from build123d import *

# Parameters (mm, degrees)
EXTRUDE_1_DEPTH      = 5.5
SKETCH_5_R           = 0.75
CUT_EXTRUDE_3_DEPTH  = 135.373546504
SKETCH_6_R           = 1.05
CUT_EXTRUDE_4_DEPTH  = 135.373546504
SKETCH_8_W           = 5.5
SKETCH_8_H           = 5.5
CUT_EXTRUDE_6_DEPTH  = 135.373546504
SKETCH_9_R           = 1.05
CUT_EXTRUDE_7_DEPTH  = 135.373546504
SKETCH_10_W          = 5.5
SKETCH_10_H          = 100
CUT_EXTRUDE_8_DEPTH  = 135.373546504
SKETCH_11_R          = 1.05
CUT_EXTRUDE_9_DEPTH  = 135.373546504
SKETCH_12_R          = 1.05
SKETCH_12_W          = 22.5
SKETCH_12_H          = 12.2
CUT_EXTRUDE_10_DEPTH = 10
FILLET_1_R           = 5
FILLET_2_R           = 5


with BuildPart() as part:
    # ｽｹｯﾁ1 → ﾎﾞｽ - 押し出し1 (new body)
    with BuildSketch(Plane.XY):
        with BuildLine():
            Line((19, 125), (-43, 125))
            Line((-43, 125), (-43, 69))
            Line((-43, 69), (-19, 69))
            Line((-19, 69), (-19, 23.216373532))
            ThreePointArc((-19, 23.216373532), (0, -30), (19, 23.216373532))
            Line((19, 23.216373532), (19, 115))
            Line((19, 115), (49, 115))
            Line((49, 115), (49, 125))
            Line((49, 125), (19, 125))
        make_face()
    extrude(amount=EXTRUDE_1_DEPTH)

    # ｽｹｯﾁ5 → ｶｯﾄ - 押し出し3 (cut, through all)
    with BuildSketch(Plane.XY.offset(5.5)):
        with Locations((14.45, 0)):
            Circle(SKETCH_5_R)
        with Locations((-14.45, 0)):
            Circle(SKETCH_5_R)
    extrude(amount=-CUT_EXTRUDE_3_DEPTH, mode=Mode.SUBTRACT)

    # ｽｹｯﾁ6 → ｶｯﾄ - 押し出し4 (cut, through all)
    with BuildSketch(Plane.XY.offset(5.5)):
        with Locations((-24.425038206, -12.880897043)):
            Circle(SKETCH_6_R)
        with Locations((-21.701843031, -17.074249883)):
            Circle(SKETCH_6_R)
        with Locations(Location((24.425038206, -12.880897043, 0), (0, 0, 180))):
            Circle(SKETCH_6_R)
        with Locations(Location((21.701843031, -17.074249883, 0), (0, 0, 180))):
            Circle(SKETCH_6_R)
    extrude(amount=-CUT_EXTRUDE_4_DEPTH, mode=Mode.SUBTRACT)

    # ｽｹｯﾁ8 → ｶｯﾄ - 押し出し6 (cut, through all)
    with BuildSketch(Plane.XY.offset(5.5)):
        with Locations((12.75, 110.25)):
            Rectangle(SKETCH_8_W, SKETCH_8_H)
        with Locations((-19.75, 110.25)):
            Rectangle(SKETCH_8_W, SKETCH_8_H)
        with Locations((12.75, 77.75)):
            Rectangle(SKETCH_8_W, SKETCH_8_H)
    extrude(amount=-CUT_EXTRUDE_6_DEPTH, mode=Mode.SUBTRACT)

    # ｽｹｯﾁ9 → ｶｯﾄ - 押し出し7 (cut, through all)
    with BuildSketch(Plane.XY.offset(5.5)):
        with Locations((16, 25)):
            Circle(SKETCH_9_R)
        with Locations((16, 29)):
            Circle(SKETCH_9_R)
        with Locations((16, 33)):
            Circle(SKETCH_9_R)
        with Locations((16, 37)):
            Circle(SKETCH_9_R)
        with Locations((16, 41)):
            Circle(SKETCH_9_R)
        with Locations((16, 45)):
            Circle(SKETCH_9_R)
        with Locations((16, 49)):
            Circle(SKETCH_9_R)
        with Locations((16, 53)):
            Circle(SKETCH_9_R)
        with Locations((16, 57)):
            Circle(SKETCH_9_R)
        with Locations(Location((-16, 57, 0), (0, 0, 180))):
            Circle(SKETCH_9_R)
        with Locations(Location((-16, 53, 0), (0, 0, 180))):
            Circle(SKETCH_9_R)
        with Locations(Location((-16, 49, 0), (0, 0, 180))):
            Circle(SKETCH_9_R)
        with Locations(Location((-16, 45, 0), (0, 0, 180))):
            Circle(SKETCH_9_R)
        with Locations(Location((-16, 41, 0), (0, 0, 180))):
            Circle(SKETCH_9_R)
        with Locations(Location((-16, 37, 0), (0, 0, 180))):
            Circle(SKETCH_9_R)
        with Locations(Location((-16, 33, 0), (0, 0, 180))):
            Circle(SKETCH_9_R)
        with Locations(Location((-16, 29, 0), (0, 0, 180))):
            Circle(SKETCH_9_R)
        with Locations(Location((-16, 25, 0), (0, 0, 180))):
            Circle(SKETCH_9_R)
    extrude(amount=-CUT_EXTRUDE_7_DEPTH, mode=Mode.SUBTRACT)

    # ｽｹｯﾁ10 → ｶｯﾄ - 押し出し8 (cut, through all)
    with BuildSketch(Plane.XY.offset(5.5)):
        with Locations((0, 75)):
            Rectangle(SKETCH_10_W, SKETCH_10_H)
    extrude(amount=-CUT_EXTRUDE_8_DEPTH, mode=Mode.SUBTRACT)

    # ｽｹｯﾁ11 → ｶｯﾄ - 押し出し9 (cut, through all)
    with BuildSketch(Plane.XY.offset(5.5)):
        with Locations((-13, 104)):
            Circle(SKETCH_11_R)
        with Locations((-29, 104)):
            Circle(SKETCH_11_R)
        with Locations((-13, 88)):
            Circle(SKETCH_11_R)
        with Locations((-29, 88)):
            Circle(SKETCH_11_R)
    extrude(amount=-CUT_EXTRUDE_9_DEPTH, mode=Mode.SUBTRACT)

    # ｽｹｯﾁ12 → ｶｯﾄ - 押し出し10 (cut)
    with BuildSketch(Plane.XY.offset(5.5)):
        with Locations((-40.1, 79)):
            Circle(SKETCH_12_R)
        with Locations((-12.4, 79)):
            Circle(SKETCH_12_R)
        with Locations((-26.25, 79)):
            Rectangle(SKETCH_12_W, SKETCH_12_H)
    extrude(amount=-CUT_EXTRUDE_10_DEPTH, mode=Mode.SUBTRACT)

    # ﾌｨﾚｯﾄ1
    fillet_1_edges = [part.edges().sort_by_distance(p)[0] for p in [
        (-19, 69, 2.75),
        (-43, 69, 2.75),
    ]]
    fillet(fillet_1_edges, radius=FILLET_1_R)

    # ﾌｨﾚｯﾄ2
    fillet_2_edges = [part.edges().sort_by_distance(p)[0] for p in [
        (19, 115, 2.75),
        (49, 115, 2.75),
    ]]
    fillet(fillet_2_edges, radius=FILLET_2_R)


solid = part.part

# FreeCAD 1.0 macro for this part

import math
import FreeCAD as App
import Part
import Sketcher
Q = App.Units.Quantity


def edges_at(feature, points):
    """Names of the edges that pass closest to the given points."""
    edges = feature.Shape.Edges
    near = lambda p: min(range(len(edges)), key=lambda i: edges[i].distToShape(Part.Vertex(*p))[0])
    return sorted({f"Edge{near(p) + 1}" for p in points})

doc = App.newDocument("Part")
body = doc.addObject("PartDesign::Body", "Body")

# Sketch on XY plane
sketch1 = body.newObject("Sketcher::SketchObject", "Sketch")
sketch1.AttachmentSupport = (doc.getObject("XY_Plane"), [""])
sketch1.MapMode = "FlatFace"
sketch1.addGeometry([
    Part.LineSegment(App.Vector(-43, 125, 0), App.Vector(-43, 69, 0)),  # 0
    Part.LineSegment(App.Vector(-43, 69, 0), App.Vector(-19, 69, 0)),  # 1
    Part.LineSegment(App.Vector(-19, 69, 0), App.Vector(-19, 23, 0)),  # 2
    Part.ArcOfCircle(Part.Circle(App.Vector(0, 0, 0), App.Vector(0, 0, 1), 30), math.radians(129), math.radians(411)),  # 3
    Part.LineSegment(App.Vector(19, 23, 0), App.Vector(19, 115, 0)),  # 4
    Part.LineSegment(App.Vector(19, 115, 0), App.Vector(49, 115, 0)),  # 5
    Part.LineSegment(App.Vector(49, 115, 0), App.Vector(49, 125, 0)),  # 6
    Part.LineSegment(App.Vector(49, 125, 0), App.Vector(-43, 125, 0)),  # 7
], False)
sketch1.addConstraint([
    Sketcher.Constraint("Coincident", 0, 2, 1, 1),
    Sketcher.Constraint("Coincident", 1, 2, 2, 1),
    Sketcher.Constraint("Coincident", 2, 2, 3, 1),
    Sketcher.Constraint("Coincident", 3, 2, 4, 1),
    Sketcher.Constraint("Coincident", 4, 2, 5, 1),
    Sketcher.Constraint("Coincident", 5, 2, 6, 1),
    Sketcher.Constraint("Coincident", 6, 2, 7, 1),
    Sketcher.Constraint("Coincident", 7, 2, 0, 1),
    Sketcher.Constraint("Vertical", 0),
    Sketcher.Constraint("Horizontal", 1),
    Sketcher.Constraint("Vertical", 2),
    Sketcher.Constraint("Vertical", 4),
    Sketcher.Constraint("Horizontal", 5),
    Sketcher.Constraint("Vertical", 6),
    Sketcher.Constraint("Horizontal", 7),
    Sketcher.Constraint("Coincident", 3, 3, -1, 1),
    Sketcher.Constraint("Horizontal", 2, 2, 3, 2),
    Sketcher.Constraint("Radius", 3, Q("30 mm")),
    Sketcher.Constraint("DistanceX", 1, 1, 1, 2, Q("24 mm")),
    Sketcher.Constraint("DistanceX", 5, 1, 5, 2, Q("30 mm")),
    Sketcher.Constraint("DistanceX", 7, 2, 7, 1, Q("92 mm")),
    Sketcher.Constraint("DistanceY", 0, 2, 0, 1, Q("56 mm")),
    Sketcher.Constraint("DistanceY", 6, 1, 6, 2, Q("10 mm")),
    Sketcher.Constraint("DistanceY", -1, 1, 0, 2, Q("69 mm")),
])
pad1 = body.newObject("PartDesign::Pad", "Pad")
pad1.Profile = sketch1
pad1.Length = 5.5

# Sketch on XY plane
sketch2 = body.newObject("Sketcher::SketchObject", "Sketch001")
sketch2.AttachmentSupport = (doc.getObject("XY_Plane"), [""])
sketch2.MapMode = "FlatFace"
sketch2.AttachmentOffset = App.Placement(App.Vector(0, 0, 5.5), App.Rotation())
sketch2.addGeometry([
    Part.Circle(App.Vector(14.4, 0, 0), App.Vector(0, 0, 1), 0.8),
    Part.Circle(App.Vector(-14.4, 0, 0), App.Vector(0, 0, 1), 0.8),
], False)
sketch2.addConstraint([
    Sketcher.Constraint("Equal", 0, 1),
    Sketcher.Constraint("Symmetric", 0, 3, 1, 3, -1, 1),
    Sketcher.Constraint("PointOnObject", 0, 3, -1),
    Sketcher.Constraint("Diameter", 0, Q("1.5 mm")),
    Sketcher.Constraint("DistanceX", 1, 3, 0, 3, Q("28.9 mm")),
])
pocket1 = body.newObject("PartDesign::Pocket", "Pocket")
pocket1.Profile = sketch2
pocket1.Type = "ThroughAll"

# Sketch on XY plane
sketch3 = body.newObject("Sketcher::SketchObject", "Sketch002")
sketch3.AttachmentSupport = (doc.getObject("XY_Plane"), [""])
sketch3.MapMode = "FlatFace"
sketch3.AttachmentOffset = App.Placement(App.Vector(0, 0, 5.5), App.Rotation())
sketch3.addGeometry([
    Part.Circle(App.Vector(-24.4, -12.9, 0), App.Vector(0, 0, 1), 1.1),
    Part.Circle(App.Vector(-21.7, -17.1, 0), App.Vector(0, 0, 1), 1.1),
    Part.Circle(App.Vector(24.4, -12.9, 0), App.Vector(0, 0, 1), 1.1),
    Part.Circle(App.Vector(21.7, -17.1, 0), App.Vector(0, 0, 1), 1.1),
], False)
sketch3.addConstraint([
    Sketcher.Constraint("Equal", 0, 1),
    Sketcher.Constraint("Equal", 1, 2),
    Sketcher.Constraint("Equal", 2, 3),
    Sketcher.Constraint("Symmetric", 0, 3, 2, 3, -2),
    Sketcher.Constraint("Symmetric", 1, 3, 3, 3, -2),
    Sketcher.Constraint("Diameter", 0, Q("2.1 mm")),
    Sketcher.Constraint("DistanceX", 0, 3, -1, 1, Q("24.425038 mm")),
    Sketcher.Constraint("DistanceY", 1, 3, -1, 1, Q("17.07425 mm")),
    Sketcher.Constraint("DistanceX", 1, 3, 2, 3, Q("46.126881 mm")),
    Sketcher.Constraint("DistanceY", 0, 3, -1, 1, Q("12.880897 mm")),
])
pocket2 = body.newObject("PartDesign::Pocket", "Pocket001")
pocket2.Profile = sketch3
pocket2.Type = "ThroughAll"

# Sketch on XY plane
sketch4 = body.newObject("Sketcher::SketchObject", "Sketch003")
sketch4.AttachmentSupport = (doc.getObject("XY_Plane"), [""])
sketch4.MapMode = "FlatFace"
sketch4.AttachmentOffset = App.Placement(App.Vector(0, 0, 5.5), App.Rotation())
sketch4.addGeometry([
    Part.LineSegment(App.Vector(10, 113, 0), App.Vector(10, 108, 0)),  # 0
    Part.LineSegment(App.Vector(10, 108, 0), App.Vector(16, 108, 0)),  # 1
    Part.LineSegment(App.Vector(16, 108, 0), App.Vector(16, 113, 0)),  # 2
    Part.LineSegment(App.Vector(16, 113, 0), App.Vector(10, 113, 0)),  # 3
    Part.LineSegment(App.Vector(-22, 113, 0), App.Vector(-22, 108, 0)),  # 4
    Part.LineSegment(App.Vector(-22, 108, 0), App.Vector(-17, 108, 0)),  # 5
    Part.LineSegment(App.Vector(-17, 108, 0), App.Vector(-17, 113, 0)),  # 6
    Part.LineSegment(App.Vector(-17, 113, 0), App.Vector(-22, 113, 0)),  # 7
    Part.LineSegment(App.Vector(10, 80, 0), App.Vector(10, 75, 0)),  # 8
    Part.LineSegment(App.Vector(10, 75, 0), App.Vector(16, 75, 0)),  # 9
    Part.LineSegment(App.Vector(16, 75, 0), App.Vector(16, 80, 0)),  # 10
    Part.LineSegment(App.Vector(16, 80, 0), App.Vector(10, 80, 0)),  # 11
], False)
sketch4.addConstraint([
    Sketcher.Constraint("Coincident", 0, 2, 1, 1),
    Sketcher.Constraint("Coincident", 1, 2, 2, 1),
    Sketcher.Constraint("Coincident", 2, 2, 3, 1),
    Sketcher.Constraint("Coincident", 3, 2, 0, 1),
    Sketcher.Constraint("Coincident", 4, 2, 5, 1),
    Sketcher.Constraint("Coincident", 5, 2, 6, 1),
    Sketcher.Constraint("Coincident", 6, 2, 7, 1),
    Sketcher.Constraint("Coincident", 7, 2, 4, 1),
    Sketcher.Constraint("Coincident", 8, 2, 9, 1),
    Sketcher.Constraint("Coincident", 9, 2, 10, 1),
    Sketcher.Constraint("Coincident", 10, 2, 11, 1),
    Sketcher.Constraint("Coincident", 11, 2, 8, 1),
    Sketcher.Constraint("Vertical", 0),
    Sketcher.Constraint("Horizontal", 1),
    Sketcher.Constraint("Vertical", 2),
    Sketcher.Constraint("Horizontal", 3),
    Sketcher.Constraint("Vertical", 4),
    Sketcher.Constraint("Horizontal", 5),
    Sketcher.Constraint("Vertical", 6),
    Sketcher.Constraint("Horizontal", 7),
    Sketcher.Constraint("Vertical", 8),
    Sketcher.Constraint("Horizontal", 9),
    Sketcher.Constraint("Vertical", 10),
    Sketcher.Constraint("Horizontal", 11),
    Sketcher.Constraint("Horizontal", 1, 2, 4, 2),
    Sketcher.Constraint("Horizontal", 3, 2, 6, 2),
    Sketcher.Constraint("Vertical", 3, 2, 8, 2),
    Sketcher.Constraint("Vertical", 2, 2, 9, 2),
    Sketcher.Constraint("Equal", 3, 5),
    Sketcher.Constraint("Equal", 11, 0),
    Sketcher.Constraint("Equal", 6, 8),
    Sketcher.Constraint("DistanceX", 1, 1, 1, 2, Q("5.5 mm")),
    Sketcher.Constraint("DistanceX", -1, 1, 0, 2, Q("10 mm")),
    Sketcher.Constraint("DistanceY", -1, 1, 2, 2, Q("113 mm")),
    Sketcher.Constraint("DistanceX", 5, 2, -1, 1, Q("17 mm")),
    Sketcher.Constraint("DistanceY", -1, 1, 8, 2, Q("75 mm")),
])
pocket3 = body.newObject("PartDesign::Pocket", "Pocket002")
pocket3.Profile = sketch4
pocket3.Type = "ThroughAll"

# Sketch on XY plane
sketch5 = body.newObject("Sketcher::SketchObject", "Sketch004")
sketch5.AttachmentSupport = (doc.getObject("XY_Plane"), [""])
sketch5.MapMode = "FlatFace"
sketch5.AttachmentOffset = App.Placement(App.Vector(0, 0, 5.5), App.Rotation())
sketch5.addGeometry([
    Part.Circle(App.Vector(16, 25, 0), App.Vector(0, 0, 1), 1.1),  # 0
    Part.Circle(App.Vector(16, 29, 0), App.Vector(0, 0, 1), 1.1),  # 1
    Part.Circle(App.Vector(16, 33, 0), App.Vector(0, 0, 1), 1.1),  # 2
    Part.Circle(App.Vector(16, 37, 0), App.Vector(0, 0, 1), 1.1),  # 3
    Part.Circle(App.Vector(16, 41, 0), App.Vector(0, 0, 1), 1.1),  # 4
    Part.Circle(App.Vector(16, 45, 0), App.Vector(0, 0, 1), 1.1),  # 5
    Part.Circle(App.Vector(16, 49, 0), App.Vector(0, 0, 1), 1.1),  # 6
    Part.Circle(App.Vector(16, 53, 0), App.Vector(0, 0, 1), 1.1),  # 7
    Part.Circle(App.Vector(16, 57, 0), App.Vector(0, 0, 1), 1.1),  # 8
    Part.Circle(App.Vector(-16, 57, 0), App.Vector(0, 0, 1), 1.1),  # 9
    Part.Circle(App.Vector(-16, 53, 0), App.Vector(0, 0, 1), 1.1),  # 10
    Part.Circle(App.Vector(-16, 49, 0), App.Vector(0, 0, 1), 1.1),  # 11
    Part.Circle(App.Vector(-16, 45, 0), App.Vector(0, 0, 1), 1.1),  # 12
    Part.Circle(App.Vector(-16, 41, 0), App.Vector(0, 0, 1), 1.1),  # 13
    Part.Circle(App.Vector(-16, 37, 0), App.Vector(0, 0, 1), 1.1),  # 14
    Part.Circle(App.Vector(-16, 33, 0), App.Vector(0, 0, 1), 1.1),  # 15
    Part.Circle(App.Vector(-16, 29, 0), App.Vector(0, 0, 1), 1.1),  # 16
    Part.Circle(App.Vector(-16, 25, 0), App.Vector(0, 0, 1), 1.1),  # 17
], False)
sketch5.addConstraint([
    Sketcher.Constraint("Equal", 0, 1),
    Sketcher.Constraint("Equal", 1, 2),
    Sketcher.Constraint("Equal", 2, 3),
    Sketcher.Constraint("Equal", 3, 4),
    Sketcher.Constraint("Equal", 4, 5),
    Sketcher.Constraint("Equal", 5, 6),
    Sketcher.Constraint("Equal", 6, 7),
    Sketcher.Constraint("Equal", 7, 8),
    Sketcher.Constraint("Equal", 8, 9),
    Sketcher.Constraint("Equal", 9, 10),
    Sketcher.Constraint("Equal", 10, 11),
    Sketcher.Constraint("Equal", 11, 12),
    Sketcher.Constraint("Equal", 12, 13),
    Sketcher.Constraint("Equal", 13, 14),
    Sketcher.Constraint("Equal", 14, 15),
    Sketcher.Constraint("Equal", 15, 16),
    Sketcher.Constraint("Equal", 16, 17),
    Sketcher.Constraint("Symmetric", 8, 3, 9, 3, -2),
    Sketcher.Constraint("Symmetric", 7, 3, 10, 3, -2),
    Sketcher.Constraint("Symmetric", 6, 3, 11, 3, -2),
    Sketcher.Constraint("Symmetric", 5, 3, 12, 3, -2),
    Sketcher.Constraint("Symmetric", 4, 3, 13, 3, -2),
    Sketcher.Constraint("Symmetric", 3, 3, 14, 3, -2),
    Sketcher.Constraint("Symmetric", 2, 3, 15, 3, -2),
    Sketcher.Constraint("Symmetric", 1, 3, 16, 3, -2),
    Sketcher.Constraint("Symmetric", 0, 3, 17, 3, -2),
    Sketcher.Constraint("Vertical", 0, 3, 1, 3),
    Sketcher.Constraint("Vertical", 1, 3, 2, 3),
    Sketcher.Constraint("Vertical", 2, 3, 3, 3),
    Sketcher.Constraint("Vertical", 3, 3, 4, 3),
    Sketcher.Constraint("Vertical", 4, 3, 5, 3),
    Sketcher.Constraint("Vertical", 5, 3, 6, 3),
    Sketcher.Constraint("Vertical", 6, 3, 7, 3),
    Sketcher.Constraint("Vertical", 7, 3, 8, 3),
    Sketcher.Constraint("Diameter", 0, Q("2.1 mm")),
    Sketcher.Constraint("DistanceX", -1, 1, 0, 3, Q("16 mm")),
    Sketcher.Constraint("DistanceY", -1, 1, 0, 3, Q("25 mm")),
    Sketcher.Constraint("DistanceY", -1, 1, 1, 3, Q("29 mm")),
    Sketcher.Constraint("DistanceY", -1, 1, 2, 3, Q("33 mm")),
    Sketcher.Constraint("DistanceY", -1, 1, 3, 3, Q("37 mm")),
    Sketcher.Constraint("DistanceY", -1, 1, 4, 3, Q("41 mm")),
    Sketcher.Constraint("DistanceY", -1, 1, 5, 3, Q("45 mm")),
    Sketcher.Constraint("DistanceY", -1, 1, 6, 3, Q("49 mm")),
    Sketcher.Constraint("DistanceY", -1, 1, 7, 3, Q("53 mm")),
    Sketcher.Constraint("DistanceY", -1, 1, 8, 3, Q("57 mm")),
])
pocket4 = body.newObject("PartDesign::Pocket", "Pocket003")
pocket4.Profile = sketch5
pocket4.Type = "ThroughAll"

# Sketch on XY plane
sketch6 = body.newObject("Sketcher::SketchObject", "Sketch005")
sketch6.AttachmentSupport = (doc.getObject("XY_Plane"), [""])
sketch6.MapMode = "FlatFace"
sketch6.AttachmentOffset = App.Placement(App.Vector(0, 0, 5.5), App.Rotation())
sketch6.addGeometry([
    Part.LineSegment(App.Vector(-3, 125, 0), App.Vector(-3, 25, 0)),
    Part.LineSegment(App.Vector(-3, 25, 0), App.Vector(3, 25, 0)),
    Part.LineSegment(App.Vector(3, 25, 0), App.Vector(3, 125, 0)),
    Part.LineSegment(App.Vector(3, 125, 0), App.Vector(-3, 125, 0)),
], False)
sketch6.addConstraint([
    Sketcher.Constraint("Coincident", 0, 2, 1, 1),
    Sketcher.Constraint("Coincident", 1, 2, 2, 1),
    Sketcher.Constraint("Coincident", 2, 2, 3, 1),
    Sketcher.Constraint("Coincident", 3, 2, 0, 1),
    Sketcher.Constraint("Vertical", 0),
    Sketcher.Constraint("Horizontal", 1),
    Sketcher.Constraint("Vertical", 2),
    Sketcher.Constraint("Horizontal", 3),
    Sketcher.Constraint("DistanceY", 0, 2, 0, 1, Q("100 mm")),
    Sketcher.Constraint("DistanceX", 1, 1, 1, 2, Q("5.5 mm")),
    Sketcher.Constraint("DistanceY", -1, 1, 0, 2, Q("25 mm")),
    Sketcher.Constraint("DistanceX", 0, 2, -1, 1, Q("2.75 mm")),
])
pocket5 = body.newObject("PartDesign::Pocket", "Pocket004")
pocket5.Profile = sketch6
pocket5.Type = "ThroughAll"

# Sketch on XY plane
sketch7 = body.newObject("Sketcher::SketchObject", "Sketch006")
sketch7.AttachmentSupport = (doc.getObject("XY_Plane"), [""])
sketch7.MapMode = "FlatFace"
sketch7.AttachmentOffset = App.Placement(App.Vector(0, 0, 5.5), App.Rotation())
sketch7.addGeometry([
    Part.Circle(App.Vector(-13, 104, 0), App.Vector(0, 0, 1), 1.1),
    Part.Circle(App.Vector(-29, 104, 0), App.Vector(0, 0, 1), 1.1),
    Part.Circle(App.Vector(-13, 88, 0), App.Vector(0, 0, 1), 1.1),
    Part.Circle(App.Vector(-29, 88, 0), App.Vector(0, 0, 1), 1.1),
], False)
sketch7.addConstraint([
    Sketcher.Constraint("Equal", 0, 1),
    Sketcher.Constraint("Equal", 1, 2),
    Sketcher.Constraint("Equal", 2, 3),
    Sketcher.Constraint("Horizontal", 0, 3, 1, 3),
    Sketcher.Constraint("Horizontal", 2, 3, 3, 3),
    Sketcher.Constraint("Vertical", 0, 3, 2, 3),
    Sketcher.Constraint("Vertical", 1, 3, 3, 3),
    Sketcher.Constraint("Diameter", 0, Q("2.1 mm")),
    Sketcher.Constraint("DistanceX", 0, 3, -1, 1, Q("13 mm")),
    Sketcher.Constraint("DistanceY", -1, 1, 0, 3, Q("104 mm")),
    Sketcher.Constraint("DistanceX", 1, 3, -1, 1, Q("29 mm")),
    Sketcher.Constraint("DistanceY", -1, 1, 2, 3, Q("88 mm")),
])
pocket6 = body.newObject("PartDesign::Pocket", "Pocket005")
pocket6.Profile = sketch7
pocket6.Type = "ThroughAll"

# Sketch on XY plane
sketch8 = body.newObject("Sketcher::SketchObject", "Sketch007")
sketch8.AttachmentSupport = (doc.getObject("XY_Plane"), [""])
sketch8.MapMode = "FlatFace"
sketch8.AttachmentOffset = App.Placement(App.Vector(0, 0, 5.5), App.Rotation())
sketch8.addGeometry([
    Part.Circle(App.Vector(-40.1, 79, 0), App.Vector(0, 0, 1), 1.1),  # 0
    Part.Circle(App.Vector(-12.4, 79, 0), App.Vector(0, 0, 1), 1.1),  # 1
    Part.LineSegment(App.Vector(-37.5, 85.1, 0), App.Vector(-37.5, 72.9, 0)),  # 2
    Part.LineSegment(App.Vector(-37.5, 72.9, 0), App.Vector(-15, 72.9, 0)),  # 3
    Part.LineSegment(App.Vector(-15, 72.9, 0), App.Vector(-15, 85.1, 0)),  # 4
    Part.LineSegment(App.Vector(-15, 85.1, 0), App.Vector(-37.5, 85.1, 0)),  # 5
], False)
sketch8.addConstraint([
    Sketcher.Constraint("Coincident", 2, 2, 3, 1),
    Sketcher.Constraint("Coincident", 3, 2, 4, 1),
    Sketcher.Constraint("Coincident", 4, 2, 5, 1),
    Sketcher.Constraint("Coincident", 5, 2, 2, 1),
    Sketcher.Constraint("Vertical", 2),
    Sketcher.Constraint("Horizontal", 3),
    Sketcher.Constraint("Vertical", 4),
    Sketcher.Constraint("Horizontal", 5),
    Sketcher.Constraint("Equal", 0, 1),
    Sketcher.Constraint("Horizontal", 0, 3, 1, 3),
    Sketcher.Constraint("Diameter", 0, Q("2.1 mm")),
    Sketcher.Constraint("DistanceX", 3, 1, 3, 2, Q("22.5 mm")),
    Sketcher.Constraint("DistanceY", 2, 2, 2, 1, Q("12.2 mm")),
    Sketcher.Constraint("DistanceY", -1, 1, 0, 3, Q("79 mm")),
    Sketcher.Constraint("DistanceX", 3, 2, -1, 1, Q("15 mm")),
    Sketcher.Constraint("DistanceX", 0, 3, -1, 1, Q("40.1 mm")),
    Sketcher.Constraint("DistanceX", 1, 3, -1, 1, Q("12.4 mm")),
    Sketcher.Constraint("DistanceY", -1, 1, 2, 2, Q("72.9 mm")),
])
pocket7 = body.newObject("PartDesign::Pocket", "Pocket006")
pocket7.Profile = sketch8
pocket7.Length = 10
doc.recompute()

fillet = body.newObject("PartDesign::Fillet", "Fillet")
fillet.Base = (pocket7, edges_at(pocket7, [(-19, 69, 2.75), (-43, 69, 2.75)]))
fillet.Radius = 5
doc.recompute()

fillet2 = body.newObject("PartDesign::Fillet", "Fillet001")
fillet2.Base = (fillet, edges_at(fillet, [(19, 115, 2.75), (49, 115, 2.75)]))
fillet2.Radius = 5

doc.recompute()
